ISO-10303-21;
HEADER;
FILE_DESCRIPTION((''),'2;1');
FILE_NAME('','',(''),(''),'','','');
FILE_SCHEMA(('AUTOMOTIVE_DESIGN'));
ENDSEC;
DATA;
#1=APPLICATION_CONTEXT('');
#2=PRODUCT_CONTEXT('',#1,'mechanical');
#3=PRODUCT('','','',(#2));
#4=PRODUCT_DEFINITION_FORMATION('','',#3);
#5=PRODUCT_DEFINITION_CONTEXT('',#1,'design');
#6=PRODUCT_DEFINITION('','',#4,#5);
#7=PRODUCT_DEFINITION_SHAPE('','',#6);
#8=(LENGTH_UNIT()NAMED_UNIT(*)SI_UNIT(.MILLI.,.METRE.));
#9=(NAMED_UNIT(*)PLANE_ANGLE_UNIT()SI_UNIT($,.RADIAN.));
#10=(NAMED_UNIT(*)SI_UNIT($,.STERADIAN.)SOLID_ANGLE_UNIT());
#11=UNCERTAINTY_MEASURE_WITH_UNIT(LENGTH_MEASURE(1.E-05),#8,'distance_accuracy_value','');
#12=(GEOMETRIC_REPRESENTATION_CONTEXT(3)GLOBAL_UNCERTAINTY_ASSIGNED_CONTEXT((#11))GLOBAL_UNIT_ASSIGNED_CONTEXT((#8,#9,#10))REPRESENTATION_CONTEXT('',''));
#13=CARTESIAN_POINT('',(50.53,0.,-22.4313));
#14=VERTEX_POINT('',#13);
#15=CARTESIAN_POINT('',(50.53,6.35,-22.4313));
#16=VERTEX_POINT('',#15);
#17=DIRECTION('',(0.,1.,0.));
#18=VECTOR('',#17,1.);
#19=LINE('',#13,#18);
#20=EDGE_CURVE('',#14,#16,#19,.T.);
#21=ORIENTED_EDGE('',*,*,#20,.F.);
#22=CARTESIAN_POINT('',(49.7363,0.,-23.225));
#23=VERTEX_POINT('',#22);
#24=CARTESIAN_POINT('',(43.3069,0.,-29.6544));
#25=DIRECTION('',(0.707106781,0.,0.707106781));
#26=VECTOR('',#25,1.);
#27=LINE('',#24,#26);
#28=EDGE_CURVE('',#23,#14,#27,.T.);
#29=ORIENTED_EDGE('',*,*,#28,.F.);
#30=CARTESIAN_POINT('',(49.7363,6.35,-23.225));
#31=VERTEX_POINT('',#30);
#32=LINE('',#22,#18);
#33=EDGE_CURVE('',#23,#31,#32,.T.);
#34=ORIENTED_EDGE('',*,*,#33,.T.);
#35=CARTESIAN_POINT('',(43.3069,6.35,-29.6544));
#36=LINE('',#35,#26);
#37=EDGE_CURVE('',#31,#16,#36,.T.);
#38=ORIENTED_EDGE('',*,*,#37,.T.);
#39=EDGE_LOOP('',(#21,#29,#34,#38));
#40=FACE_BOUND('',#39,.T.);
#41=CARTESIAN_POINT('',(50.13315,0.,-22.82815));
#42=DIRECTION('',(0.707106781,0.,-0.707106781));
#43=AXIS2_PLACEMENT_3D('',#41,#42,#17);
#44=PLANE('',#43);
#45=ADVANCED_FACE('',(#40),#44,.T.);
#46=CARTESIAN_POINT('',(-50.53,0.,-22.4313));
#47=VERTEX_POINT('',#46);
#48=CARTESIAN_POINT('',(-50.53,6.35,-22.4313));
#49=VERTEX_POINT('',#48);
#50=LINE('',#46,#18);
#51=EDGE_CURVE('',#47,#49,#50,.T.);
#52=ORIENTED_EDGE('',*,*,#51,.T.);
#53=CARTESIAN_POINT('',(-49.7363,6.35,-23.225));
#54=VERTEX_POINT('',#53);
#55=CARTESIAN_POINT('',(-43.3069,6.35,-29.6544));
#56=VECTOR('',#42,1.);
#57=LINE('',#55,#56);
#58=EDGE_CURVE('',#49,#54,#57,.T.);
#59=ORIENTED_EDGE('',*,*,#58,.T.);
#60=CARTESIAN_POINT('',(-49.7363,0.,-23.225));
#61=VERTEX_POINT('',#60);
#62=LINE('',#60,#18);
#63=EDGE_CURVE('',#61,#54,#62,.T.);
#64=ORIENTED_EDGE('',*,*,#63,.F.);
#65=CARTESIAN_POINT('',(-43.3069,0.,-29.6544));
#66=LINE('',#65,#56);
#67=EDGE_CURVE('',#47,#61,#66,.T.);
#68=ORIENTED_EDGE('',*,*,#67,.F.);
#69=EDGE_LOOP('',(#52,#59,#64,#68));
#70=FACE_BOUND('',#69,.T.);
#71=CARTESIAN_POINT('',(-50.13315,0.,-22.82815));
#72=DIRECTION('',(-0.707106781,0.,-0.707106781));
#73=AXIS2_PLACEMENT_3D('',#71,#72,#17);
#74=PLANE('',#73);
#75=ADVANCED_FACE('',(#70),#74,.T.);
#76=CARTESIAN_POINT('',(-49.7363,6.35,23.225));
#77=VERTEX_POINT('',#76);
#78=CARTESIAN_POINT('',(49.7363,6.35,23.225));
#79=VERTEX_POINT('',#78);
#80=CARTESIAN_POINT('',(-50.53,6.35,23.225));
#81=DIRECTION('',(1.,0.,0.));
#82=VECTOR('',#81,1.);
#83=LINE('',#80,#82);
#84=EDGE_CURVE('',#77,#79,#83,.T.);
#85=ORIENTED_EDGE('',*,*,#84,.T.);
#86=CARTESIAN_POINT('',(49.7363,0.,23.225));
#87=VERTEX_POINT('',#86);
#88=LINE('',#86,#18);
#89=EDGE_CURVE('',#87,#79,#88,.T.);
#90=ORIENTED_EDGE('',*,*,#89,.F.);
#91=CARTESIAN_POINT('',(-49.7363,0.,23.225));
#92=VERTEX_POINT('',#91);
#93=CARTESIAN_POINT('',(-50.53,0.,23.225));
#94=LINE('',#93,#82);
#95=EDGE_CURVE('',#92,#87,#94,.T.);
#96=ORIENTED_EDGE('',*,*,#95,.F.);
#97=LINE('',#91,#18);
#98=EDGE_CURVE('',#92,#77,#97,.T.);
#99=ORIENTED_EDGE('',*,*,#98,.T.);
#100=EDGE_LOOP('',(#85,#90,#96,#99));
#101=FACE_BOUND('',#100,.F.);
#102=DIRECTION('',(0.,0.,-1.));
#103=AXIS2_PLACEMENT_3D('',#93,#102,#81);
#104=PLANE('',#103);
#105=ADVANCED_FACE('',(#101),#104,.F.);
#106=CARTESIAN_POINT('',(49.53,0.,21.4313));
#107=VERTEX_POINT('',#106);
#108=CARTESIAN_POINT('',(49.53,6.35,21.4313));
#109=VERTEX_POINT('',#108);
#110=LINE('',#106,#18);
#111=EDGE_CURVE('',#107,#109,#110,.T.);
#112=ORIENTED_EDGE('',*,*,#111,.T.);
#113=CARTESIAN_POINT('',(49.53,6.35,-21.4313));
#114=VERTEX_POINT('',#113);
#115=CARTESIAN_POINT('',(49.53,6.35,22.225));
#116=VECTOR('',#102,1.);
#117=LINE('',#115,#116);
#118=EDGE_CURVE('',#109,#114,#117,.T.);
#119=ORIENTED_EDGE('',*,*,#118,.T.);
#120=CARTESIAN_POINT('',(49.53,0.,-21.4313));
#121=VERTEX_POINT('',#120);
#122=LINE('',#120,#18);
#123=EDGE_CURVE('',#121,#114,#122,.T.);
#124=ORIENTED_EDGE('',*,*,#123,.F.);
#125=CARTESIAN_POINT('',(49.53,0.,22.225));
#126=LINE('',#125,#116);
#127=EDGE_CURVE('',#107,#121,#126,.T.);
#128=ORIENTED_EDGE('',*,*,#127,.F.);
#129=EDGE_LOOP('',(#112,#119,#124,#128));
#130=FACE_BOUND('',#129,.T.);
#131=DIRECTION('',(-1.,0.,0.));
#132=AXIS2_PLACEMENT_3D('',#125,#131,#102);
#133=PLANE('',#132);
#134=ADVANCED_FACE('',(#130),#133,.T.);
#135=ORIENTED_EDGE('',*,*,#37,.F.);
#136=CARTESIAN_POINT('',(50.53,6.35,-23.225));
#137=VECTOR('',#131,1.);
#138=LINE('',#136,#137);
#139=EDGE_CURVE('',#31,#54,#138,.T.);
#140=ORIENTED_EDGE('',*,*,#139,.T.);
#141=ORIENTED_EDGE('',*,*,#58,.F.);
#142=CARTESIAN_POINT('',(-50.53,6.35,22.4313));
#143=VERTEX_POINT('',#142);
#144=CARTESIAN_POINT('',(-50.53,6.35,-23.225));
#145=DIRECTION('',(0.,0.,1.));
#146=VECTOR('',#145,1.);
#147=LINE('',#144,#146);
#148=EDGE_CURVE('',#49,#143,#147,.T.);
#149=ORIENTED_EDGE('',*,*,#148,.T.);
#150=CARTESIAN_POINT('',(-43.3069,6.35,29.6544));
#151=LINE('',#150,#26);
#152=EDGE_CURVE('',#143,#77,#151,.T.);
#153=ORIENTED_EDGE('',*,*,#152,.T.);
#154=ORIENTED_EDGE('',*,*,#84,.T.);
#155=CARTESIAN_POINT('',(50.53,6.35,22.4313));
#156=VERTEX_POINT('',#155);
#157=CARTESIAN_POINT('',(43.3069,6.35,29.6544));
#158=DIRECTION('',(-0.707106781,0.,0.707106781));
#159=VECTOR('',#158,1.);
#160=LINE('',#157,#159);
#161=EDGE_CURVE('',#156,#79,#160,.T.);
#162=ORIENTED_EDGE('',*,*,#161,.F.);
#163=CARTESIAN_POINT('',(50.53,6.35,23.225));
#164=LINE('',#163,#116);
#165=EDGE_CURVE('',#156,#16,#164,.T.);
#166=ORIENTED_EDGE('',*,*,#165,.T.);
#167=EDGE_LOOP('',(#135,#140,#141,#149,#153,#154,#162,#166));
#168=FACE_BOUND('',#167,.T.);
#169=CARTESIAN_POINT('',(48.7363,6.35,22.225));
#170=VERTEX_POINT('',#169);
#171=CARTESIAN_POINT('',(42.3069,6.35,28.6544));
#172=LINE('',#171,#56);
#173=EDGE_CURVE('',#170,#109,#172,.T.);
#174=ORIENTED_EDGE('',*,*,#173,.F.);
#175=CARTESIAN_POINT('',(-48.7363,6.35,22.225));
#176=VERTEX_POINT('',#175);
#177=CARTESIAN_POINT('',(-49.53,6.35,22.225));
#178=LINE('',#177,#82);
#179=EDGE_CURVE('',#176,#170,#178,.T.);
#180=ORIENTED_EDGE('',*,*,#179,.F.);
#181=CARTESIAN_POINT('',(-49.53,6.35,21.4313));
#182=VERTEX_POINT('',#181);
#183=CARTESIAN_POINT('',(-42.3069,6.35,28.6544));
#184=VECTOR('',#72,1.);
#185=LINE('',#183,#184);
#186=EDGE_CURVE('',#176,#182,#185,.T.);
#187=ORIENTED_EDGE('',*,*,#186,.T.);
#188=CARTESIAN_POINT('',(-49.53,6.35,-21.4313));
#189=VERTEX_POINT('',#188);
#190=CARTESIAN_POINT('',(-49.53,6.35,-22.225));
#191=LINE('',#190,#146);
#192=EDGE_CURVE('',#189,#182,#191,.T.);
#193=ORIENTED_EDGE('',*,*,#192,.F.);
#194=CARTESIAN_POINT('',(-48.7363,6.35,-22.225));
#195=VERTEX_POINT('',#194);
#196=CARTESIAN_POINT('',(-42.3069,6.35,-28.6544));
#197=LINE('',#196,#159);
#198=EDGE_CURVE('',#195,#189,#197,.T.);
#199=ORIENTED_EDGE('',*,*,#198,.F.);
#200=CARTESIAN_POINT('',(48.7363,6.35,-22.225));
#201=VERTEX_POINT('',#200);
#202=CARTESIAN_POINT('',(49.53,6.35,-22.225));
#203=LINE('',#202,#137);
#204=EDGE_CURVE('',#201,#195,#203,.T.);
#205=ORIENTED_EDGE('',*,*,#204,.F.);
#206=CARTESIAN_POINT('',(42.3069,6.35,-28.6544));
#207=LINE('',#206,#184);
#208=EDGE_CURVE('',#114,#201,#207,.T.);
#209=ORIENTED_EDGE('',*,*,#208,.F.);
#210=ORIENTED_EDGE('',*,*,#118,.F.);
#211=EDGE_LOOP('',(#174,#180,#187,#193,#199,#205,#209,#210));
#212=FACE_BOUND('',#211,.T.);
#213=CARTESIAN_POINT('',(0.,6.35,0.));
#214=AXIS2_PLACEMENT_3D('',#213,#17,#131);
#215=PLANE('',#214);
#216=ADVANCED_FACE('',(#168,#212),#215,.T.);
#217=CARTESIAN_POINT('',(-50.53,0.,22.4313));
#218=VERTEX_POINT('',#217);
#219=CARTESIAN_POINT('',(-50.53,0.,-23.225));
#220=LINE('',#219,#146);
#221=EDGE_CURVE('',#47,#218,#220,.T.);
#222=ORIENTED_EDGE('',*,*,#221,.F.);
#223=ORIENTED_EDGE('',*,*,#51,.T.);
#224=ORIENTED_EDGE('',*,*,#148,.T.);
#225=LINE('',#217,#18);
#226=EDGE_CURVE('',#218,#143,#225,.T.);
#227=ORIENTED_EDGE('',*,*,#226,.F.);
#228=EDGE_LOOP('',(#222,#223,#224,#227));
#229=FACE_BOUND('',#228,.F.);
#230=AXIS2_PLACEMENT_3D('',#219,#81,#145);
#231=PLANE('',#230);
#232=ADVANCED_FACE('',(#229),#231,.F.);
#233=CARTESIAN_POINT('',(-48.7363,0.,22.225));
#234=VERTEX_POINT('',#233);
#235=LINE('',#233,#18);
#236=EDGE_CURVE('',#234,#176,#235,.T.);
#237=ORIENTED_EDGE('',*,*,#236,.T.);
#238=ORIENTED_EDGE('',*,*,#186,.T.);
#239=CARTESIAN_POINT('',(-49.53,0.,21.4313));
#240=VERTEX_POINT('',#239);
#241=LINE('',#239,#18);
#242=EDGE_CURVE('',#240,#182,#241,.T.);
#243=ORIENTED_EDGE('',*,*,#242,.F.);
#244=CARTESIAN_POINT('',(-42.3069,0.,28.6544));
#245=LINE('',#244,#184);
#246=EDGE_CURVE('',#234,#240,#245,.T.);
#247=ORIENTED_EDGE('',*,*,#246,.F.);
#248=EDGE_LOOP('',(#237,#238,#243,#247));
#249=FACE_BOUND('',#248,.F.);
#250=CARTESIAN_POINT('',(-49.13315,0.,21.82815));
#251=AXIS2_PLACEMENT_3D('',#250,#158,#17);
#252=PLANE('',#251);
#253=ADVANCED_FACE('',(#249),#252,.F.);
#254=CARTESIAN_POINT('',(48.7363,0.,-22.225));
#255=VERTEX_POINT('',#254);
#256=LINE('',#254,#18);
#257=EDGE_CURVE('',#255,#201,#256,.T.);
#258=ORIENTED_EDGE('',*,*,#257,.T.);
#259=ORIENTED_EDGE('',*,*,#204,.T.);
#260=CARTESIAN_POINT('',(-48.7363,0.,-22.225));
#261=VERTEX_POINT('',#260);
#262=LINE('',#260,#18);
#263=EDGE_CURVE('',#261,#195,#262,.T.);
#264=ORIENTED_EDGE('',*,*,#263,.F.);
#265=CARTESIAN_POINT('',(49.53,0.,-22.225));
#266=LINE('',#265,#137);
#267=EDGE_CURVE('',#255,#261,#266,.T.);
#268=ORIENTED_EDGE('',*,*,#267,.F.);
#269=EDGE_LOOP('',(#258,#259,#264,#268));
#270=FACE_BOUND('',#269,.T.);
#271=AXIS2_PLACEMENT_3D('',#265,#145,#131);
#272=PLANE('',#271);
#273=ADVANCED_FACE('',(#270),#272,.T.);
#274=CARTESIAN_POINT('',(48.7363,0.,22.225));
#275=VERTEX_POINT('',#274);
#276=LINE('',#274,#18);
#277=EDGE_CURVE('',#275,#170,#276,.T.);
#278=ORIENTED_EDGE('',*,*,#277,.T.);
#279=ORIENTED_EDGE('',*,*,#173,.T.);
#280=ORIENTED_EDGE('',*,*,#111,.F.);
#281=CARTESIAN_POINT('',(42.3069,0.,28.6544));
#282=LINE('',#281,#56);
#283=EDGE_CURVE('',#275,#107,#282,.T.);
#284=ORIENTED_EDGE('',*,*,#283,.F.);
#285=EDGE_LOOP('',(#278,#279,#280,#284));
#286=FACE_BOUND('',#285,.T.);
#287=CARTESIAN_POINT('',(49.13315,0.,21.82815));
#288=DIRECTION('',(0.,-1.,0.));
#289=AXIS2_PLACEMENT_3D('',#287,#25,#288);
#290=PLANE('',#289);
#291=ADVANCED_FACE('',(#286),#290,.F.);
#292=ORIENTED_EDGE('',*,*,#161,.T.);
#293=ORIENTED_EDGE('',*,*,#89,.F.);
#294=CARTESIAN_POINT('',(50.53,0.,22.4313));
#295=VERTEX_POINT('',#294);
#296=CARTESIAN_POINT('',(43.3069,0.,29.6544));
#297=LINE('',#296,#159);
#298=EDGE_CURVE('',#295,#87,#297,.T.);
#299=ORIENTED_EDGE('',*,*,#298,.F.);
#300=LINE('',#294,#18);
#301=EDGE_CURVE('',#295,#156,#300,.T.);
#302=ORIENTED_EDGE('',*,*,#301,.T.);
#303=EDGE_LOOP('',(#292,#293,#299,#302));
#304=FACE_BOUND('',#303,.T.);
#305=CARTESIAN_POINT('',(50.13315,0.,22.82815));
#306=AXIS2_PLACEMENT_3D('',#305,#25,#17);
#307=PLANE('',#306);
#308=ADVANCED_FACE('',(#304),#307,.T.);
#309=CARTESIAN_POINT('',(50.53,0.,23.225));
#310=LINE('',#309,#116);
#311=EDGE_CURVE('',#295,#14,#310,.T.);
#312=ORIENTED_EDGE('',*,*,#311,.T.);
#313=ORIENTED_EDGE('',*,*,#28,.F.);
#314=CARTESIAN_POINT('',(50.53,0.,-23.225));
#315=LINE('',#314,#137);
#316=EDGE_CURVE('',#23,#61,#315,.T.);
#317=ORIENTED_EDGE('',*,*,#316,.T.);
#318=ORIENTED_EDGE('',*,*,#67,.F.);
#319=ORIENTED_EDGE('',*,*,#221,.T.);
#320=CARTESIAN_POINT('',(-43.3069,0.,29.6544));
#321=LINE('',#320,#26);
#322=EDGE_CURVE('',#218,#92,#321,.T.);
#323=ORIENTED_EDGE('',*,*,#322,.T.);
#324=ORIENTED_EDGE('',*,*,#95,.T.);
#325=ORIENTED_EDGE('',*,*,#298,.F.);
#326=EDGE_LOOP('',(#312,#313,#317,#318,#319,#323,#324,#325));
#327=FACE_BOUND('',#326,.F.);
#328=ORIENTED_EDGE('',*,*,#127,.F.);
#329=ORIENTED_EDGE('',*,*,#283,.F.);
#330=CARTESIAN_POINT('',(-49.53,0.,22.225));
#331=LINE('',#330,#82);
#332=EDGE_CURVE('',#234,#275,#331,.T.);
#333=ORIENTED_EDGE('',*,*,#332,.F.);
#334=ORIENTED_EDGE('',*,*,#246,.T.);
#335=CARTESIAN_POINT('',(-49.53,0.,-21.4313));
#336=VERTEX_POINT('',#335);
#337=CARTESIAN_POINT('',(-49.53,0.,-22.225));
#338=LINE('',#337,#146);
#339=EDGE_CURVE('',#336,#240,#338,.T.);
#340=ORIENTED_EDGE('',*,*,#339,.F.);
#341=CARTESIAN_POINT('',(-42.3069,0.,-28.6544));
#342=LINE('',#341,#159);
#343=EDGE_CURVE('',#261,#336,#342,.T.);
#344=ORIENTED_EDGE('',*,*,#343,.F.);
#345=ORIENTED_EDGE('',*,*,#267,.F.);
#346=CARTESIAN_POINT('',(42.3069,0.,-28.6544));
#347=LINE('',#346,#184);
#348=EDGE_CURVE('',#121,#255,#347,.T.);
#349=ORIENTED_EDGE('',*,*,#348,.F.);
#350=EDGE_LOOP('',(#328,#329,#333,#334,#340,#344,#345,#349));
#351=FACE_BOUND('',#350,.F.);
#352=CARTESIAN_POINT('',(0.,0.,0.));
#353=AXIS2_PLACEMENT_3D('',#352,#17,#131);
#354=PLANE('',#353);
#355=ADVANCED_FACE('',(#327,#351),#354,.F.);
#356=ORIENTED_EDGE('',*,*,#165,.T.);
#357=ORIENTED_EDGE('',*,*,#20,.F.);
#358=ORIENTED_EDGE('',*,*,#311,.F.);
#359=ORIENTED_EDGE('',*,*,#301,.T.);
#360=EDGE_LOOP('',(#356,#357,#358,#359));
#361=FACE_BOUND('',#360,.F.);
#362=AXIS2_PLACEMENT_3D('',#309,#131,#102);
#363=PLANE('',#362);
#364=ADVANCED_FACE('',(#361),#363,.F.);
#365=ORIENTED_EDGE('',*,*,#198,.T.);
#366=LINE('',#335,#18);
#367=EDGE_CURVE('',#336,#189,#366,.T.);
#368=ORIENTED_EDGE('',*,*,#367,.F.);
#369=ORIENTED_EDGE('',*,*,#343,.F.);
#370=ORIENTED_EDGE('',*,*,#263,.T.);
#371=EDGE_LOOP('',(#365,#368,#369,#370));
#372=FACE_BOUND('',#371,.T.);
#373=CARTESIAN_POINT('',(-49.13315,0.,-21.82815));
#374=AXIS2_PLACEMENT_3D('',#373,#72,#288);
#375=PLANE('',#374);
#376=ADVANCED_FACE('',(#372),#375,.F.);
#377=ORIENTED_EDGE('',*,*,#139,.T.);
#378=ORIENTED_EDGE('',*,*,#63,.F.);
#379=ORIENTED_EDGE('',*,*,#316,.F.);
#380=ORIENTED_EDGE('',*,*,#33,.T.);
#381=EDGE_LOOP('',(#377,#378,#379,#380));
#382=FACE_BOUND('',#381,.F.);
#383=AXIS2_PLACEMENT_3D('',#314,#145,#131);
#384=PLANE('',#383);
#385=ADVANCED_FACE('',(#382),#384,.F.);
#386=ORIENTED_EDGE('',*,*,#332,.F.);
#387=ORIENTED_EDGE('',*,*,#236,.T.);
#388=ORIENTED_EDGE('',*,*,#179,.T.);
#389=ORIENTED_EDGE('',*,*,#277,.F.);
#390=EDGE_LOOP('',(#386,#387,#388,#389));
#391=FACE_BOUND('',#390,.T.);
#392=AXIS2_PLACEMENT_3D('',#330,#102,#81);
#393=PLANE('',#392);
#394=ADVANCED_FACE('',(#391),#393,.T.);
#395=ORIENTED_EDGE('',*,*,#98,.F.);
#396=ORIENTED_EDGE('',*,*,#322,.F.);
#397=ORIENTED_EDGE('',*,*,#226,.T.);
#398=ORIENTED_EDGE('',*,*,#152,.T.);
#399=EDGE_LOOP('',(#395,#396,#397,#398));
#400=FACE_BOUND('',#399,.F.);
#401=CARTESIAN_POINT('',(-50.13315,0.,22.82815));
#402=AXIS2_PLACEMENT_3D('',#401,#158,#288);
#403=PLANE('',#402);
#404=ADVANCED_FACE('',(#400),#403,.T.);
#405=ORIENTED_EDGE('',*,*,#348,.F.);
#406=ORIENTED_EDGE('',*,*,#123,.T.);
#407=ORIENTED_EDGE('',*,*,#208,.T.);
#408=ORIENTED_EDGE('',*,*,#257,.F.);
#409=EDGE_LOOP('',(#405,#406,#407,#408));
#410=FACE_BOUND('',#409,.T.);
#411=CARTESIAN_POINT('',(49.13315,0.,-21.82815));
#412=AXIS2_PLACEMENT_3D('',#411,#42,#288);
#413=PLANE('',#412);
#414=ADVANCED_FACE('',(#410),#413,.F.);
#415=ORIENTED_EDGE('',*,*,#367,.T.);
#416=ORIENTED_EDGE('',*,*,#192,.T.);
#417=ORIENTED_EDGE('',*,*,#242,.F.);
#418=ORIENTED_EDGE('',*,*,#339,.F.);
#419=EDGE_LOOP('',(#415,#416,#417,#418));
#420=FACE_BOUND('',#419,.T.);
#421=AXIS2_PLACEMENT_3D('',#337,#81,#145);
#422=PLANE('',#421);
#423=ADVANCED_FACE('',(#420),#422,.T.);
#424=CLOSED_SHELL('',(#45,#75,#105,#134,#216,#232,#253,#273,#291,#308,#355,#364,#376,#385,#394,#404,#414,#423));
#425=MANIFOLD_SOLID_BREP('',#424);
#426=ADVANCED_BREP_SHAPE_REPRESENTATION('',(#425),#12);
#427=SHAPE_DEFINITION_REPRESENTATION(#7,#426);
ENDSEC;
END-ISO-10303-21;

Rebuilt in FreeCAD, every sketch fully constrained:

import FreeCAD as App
import Part
import Sketcher

V = App.Vector
Q = App.Units.Quantity


def edges_at(feature, points):
    """Names of the edges that pass closest to the given points."""
    edges = feature.Shape.Edges
    near = lambda p: min(range(len(edges)), key=lambda i: edges[i].distToShape(Part.Vertex(*p))[0])
    return sorted({f"Edge{near(p) + 1}" for p in points})


def add_polygon(sketch, points):
    """Adds a closed chain of lines whose ends are joined by coincident constraints."""
    first, n = sketch.GeometryCount, len(points)
    for a, b in zip(points, points[1:] + points[:1]):
        sketch.addGeometry(Part.LineSegment(App.Vector(*a, 0), App.Vector(*b, 0)), False)
    for i in range(n):
        sketch.addConstraint(Sketcher.Constraint("Coincident", first + i, 2, first + (i + 1) % n, 1))

doc = App.newDocument("Part")
params = doc.addObject("Spreadsheet::Sheet", "Params")
for row, (alias, value) in enumerate([
    ("sketch1_width", "3.9 in"),
    ("sketch1_height", "1.75 in"),
    ("pad1_length", "0.25 in"),
    ("chamfer_size", "0.031248 in"),
], start=1):
    params.set(f"A{row}", alias)
    params.set(f"B{row}", "=" + value)
    params.setAlias(f"B{row}", alias)

body = doc.addObject("PartDesign::Body", "Body")

# Sketch on XZ plane
sketch1 = body.newObject("Sketcher::SketchObject", "Sketch")
sketch1.AttachmentSupport = (doc.getObject("XZ_Plane"), [""])
sketch1.MapMode = "FlatFace"
add_polygon(sketch1, [(-51, -23), (-51, 23), (51, 23), (51, -23)])  # lines 0-3
add_polygon(sketch1, [(50, 22), (-50, 22), (-50, -22), (50, -22)])  # lines 4-7
sketch1.addConstraint([
    Sketcher.Constraint("Vertical", 0),
    Sketcher.Constraint("Horizontal", 1),
    Sketcher.Constraint("Vertical", 2),
    Sketcher.Constraint("Horizontal", 3),
    Sketcher.Constraint("Horizontal", 4),
    Sketcher.Constraint("Vertical", 5),
    Sketcher.Constraint("Horizontal", 6),
    Sketcher.Constraint("Vertical", 7),
    Sketcher.Constraint("Symmetric", 0, 2, 2, 2, -1, 1),
    Sketcher.Constraint("Symmetric", 4, 2, 6, 2, -1, 1),
    Sketcher.Constraint("DistanceX", 4, 2, 4, 1, Q("3.9 in")),
    Sketcher.Constraint("DistanceY", 5, 2, 5, 1, Q("1.75 in")),
    Sketcher.Constraint("DistanceX", 0, 2, 4, 2, Q("1 mm")),
    Sketcher.Constraint("DistanceY", 4, 2, 0, 2, Q("1 mm")),
])
sketch1.setExpression("Constraints[18]", "Params.sketch1_width")
sketch1.setExpression("Constraints[19]", "Params.sketch1_height")
pad1 = body.newObject("PartDesign::Pad", "Pad")
pad1.Profile = sketch1
pad1.setExpression("Length", "Params.pad1_length")
pad1.Reversed = True
doc.recompute()

chamfer = body.newObject("PartDesign::Chamfer", "Chamfer")
chamfer.Base = (pad1, edges_at(pad1, [
    (-50.53, 3.175, -23.225),
    (-49.53, 3.175, -22.225),
    (-49.53, 3.175, 22.225),
    (-50.53, 3.175, 23.225),
    (50.53, 3.175, -23.225),
    (49.53, 3.175, -22.225),
    (49.53, 3.175, 22.225),
    (50.53, 3.175, 23.225),
]))
chamfer.setExpression("Size", "Params.chamfer_size")

doc.recompute()
